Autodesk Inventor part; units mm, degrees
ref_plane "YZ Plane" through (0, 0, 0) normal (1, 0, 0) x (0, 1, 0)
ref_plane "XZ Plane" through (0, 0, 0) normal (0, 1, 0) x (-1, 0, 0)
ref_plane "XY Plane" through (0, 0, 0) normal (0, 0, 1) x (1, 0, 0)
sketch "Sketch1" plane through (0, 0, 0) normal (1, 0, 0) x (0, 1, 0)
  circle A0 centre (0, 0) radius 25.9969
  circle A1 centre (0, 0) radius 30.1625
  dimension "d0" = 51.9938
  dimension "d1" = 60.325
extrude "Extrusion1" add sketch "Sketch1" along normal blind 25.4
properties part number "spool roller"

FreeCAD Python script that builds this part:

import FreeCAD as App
import Part
import Sketcher
from FreeCAD import Vector
Q = App.Units.Quantity

doc = App.newDocument("Part")
body = doc.addObject("PartDesign::Body", "Body")

# Sketch on YZ plane
sketch1 = body.newObject("Sketcher::SketchObject", "Sketch")
sketch1.AttachmentSupport = (doc.getObject("YZ_Plane"), [""])
sketch1.MapMode = "FlatFace"
sketch1.addGeometry([
    Part.Circle(Vector(0, 0, 0), Vector(0, 0, 1), 30),
    Part.Circle(Vector(0, 0, 0), Vector(0, 0, 1), 26),
], False)
sketch1.addConstraint([
    Sketcher.Constraint("Coincident", 0, 3, -1, 1),
    Sketcher.Constraint("Coincident", 1, 3, -1, 1),
    Sketcher.Constraint("Diameter", 0, Q("2.375 in")),
    Sketcher.Constraint("Diameter", 1, Q("2.047 in")),
])
pad1 = body.newObject("PartDesign::Pad", "Pad")
pad1.Profile = sketch1
pad1.Length = Q("1 in")

doc.recompute()
